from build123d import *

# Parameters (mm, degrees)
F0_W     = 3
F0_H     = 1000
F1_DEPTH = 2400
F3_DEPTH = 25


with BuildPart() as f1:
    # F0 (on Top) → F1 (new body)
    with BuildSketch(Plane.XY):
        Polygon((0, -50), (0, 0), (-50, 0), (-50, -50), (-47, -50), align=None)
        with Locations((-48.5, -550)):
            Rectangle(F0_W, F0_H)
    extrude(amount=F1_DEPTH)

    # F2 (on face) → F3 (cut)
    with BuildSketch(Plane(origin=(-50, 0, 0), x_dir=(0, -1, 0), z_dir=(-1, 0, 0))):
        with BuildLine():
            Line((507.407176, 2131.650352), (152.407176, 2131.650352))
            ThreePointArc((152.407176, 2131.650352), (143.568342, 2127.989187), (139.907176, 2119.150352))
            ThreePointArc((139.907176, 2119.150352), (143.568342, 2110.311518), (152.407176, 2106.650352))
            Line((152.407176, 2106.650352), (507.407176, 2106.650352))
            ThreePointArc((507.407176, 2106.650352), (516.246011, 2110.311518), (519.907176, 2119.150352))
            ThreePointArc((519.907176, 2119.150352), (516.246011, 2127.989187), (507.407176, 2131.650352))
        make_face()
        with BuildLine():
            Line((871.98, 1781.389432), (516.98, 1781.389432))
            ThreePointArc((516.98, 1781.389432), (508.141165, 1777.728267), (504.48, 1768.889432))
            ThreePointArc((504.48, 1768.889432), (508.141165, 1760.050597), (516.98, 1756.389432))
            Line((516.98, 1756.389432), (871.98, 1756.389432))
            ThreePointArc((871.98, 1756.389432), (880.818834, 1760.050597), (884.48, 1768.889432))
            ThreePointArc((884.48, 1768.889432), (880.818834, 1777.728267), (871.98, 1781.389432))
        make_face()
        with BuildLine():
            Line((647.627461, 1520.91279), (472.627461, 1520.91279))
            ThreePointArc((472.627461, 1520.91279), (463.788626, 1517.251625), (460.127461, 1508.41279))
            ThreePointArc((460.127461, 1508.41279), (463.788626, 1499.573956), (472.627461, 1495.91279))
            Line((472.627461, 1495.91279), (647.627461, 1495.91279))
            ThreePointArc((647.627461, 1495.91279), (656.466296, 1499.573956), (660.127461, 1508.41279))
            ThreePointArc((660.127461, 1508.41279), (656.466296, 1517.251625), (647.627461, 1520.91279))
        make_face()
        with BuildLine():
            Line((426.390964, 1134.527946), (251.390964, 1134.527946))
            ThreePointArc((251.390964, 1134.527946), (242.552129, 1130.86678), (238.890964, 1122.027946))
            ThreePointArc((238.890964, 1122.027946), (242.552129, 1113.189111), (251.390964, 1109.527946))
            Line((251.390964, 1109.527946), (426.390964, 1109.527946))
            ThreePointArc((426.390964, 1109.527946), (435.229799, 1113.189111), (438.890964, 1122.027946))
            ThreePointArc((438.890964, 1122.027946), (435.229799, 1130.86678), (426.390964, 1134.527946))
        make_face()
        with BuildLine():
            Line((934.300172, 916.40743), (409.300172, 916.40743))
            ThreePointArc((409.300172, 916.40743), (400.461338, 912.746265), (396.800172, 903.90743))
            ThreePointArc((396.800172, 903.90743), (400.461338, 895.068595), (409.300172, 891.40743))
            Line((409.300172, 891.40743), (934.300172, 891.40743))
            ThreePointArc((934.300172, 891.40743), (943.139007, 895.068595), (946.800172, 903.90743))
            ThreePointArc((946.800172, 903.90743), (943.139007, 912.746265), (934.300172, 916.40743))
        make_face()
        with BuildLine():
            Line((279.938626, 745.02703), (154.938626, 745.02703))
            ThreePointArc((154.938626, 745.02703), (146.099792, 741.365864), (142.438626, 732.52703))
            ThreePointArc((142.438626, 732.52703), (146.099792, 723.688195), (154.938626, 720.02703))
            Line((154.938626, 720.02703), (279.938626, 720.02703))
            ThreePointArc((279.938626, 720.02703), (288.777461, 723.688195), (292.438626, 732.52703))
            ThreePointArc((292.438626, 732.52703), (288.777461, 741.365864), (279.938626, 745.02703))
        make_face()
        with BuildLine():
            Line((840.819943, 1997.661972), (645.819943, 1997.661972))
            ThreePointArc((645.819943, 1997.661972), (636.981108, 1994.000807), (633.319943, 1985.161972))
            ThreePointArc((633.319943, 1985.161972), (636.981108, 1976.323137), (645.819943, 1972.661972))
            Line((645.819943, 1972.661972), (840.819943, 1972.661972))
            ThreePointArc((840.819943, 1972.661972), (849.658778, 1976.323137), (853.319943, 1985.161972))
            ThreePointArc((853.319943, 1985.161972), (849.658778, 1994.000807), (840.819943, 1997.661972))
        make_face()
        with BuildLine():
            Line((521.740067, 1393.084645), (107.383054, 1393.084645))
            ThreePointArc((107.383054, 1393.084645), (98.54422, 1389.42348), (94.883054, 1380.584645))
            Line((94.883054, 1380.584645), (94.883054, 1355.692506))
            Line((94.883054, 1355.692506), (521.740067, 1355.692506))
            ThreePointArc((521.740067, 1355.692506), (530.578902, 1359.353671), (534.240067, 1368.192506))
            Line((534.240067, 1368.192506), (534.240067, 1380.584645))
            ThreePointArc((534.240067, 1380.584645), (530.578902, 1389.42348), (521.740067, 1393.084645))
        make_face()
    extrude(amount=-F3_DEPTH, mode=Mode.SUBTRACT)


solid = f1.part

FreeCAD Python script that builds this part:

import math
import FreeCAD as App
import Part
import Sketcher

V = App.Vector
Q = App.Units.Quantity


def add_polygon(sketch, points):
    """Adds a closed chain of lines whose ends are joined by coincident constraints."""
    first, n = sketch.GeometryCount, len(points)
    for a, b in zip(points, points[1:] + points[:1]):
        sketch.addGeometry(Part.LineSegment(App.Vector(*a, 0), App.Vector(*b, 0)), False)
    for i in range(n):
        sketch.addConstraint(Sketcher.Constraint("Coincident", first + i, 2, first + (i + 1) % n, 1))

doc = App.newDocument("Part")
params = doc.addObject("Spreadsheet::Sheet", "Params")
for row, (alias, value) in enumerate([
    ("sketch1_width", "50 mm"),
    ("sketch1_width2", "3 mm"),
    ("sketch1_height", "1050 mm"),
    ("pad1_length", "2400 mm"),
    ("sketch2_radius", "12.500001 mm"),
    ("sketch2_width", "355 mm"),
    ("sketch2_width2", "175 mm"),
    ("sketch2_width3", "525 mm"),
    ("sketch2_width4", "125 mm"),
    ("pocket1_length", "25 mm"),
], start=1):
    params.set(f"A{row}", alias)
    params.set(f"B{row}", "=" + value)
    params.setAlias(f"B{row}", alias)

body = doc.addObject("PartDesign::Body", "Body")

# Sketch on XY plane
sketch1 = body.newObject("Sketcher::SketchObject", "Sketch")
sketch1.AttachmentSupport = (doc.getObject("XY_Plane"), [""])
sketch1.MapMode = "FlatFace"
add_polygon(sketch1, [(0, -50), (0, 0), (-50, 0), (-50, -1050), (-47, -1050), (-47, -50)])  # lines 0-5
sketch1.addConstraint(Sketcher.Constraint("Vertical", 0))
sketch1.addConstraint(Sketcher.Constraint("Horizontal", 1))
sketch1.addConstraint(Sketcher.Constraint("Vertical", 2))
sketch1.addConstraint(Sketcher.Constraint("Horizontal", 3))
sketch1.addConstraint(Sketcher.Constraint("Vertical", 4))
sketch1.addConstraint(Sketcher.Constraint("Horizontal", 5))
sketch1.addConstraint(Sketcher.Constraint("Coincident", 0, 2, -1, 1))
sketch1.addConstraint(Sketcher.Constraint("Equal", 1, 0))
sketch1.addConstraint(Sketcher.Constraint("DistanceX", 1, 2, 1, 1, Q("50 mm")))
sketch1.addConstraint(Sketcher.Constraint("DistanceX", 3, 1, 3, 2, Q("3 mm")))
sketch1.addConstraint(Sketcher.Constraint("DistanceY", 2, 2, 2, 1, Q("1050 mm")))
sketch1.setExpression("Constraints[14]", "Params.sketch1_width")
sketch1.setExpression("Constraints[15]", "Params.sketch1_width2")
sketch1.setExpression("Constraints[16]", "Params.sketch1_height")
pad1 = body.newObject("PartDesign::Pad", "Pad")
pad1.Profile = sketch1
pad1.setExpression("Length", "Params.pad1_length")

# Sketch on YZ plane
sketch2 = body.newObject("Sketcher::SketchObject", "Sketch001")
sketch2.AttachmentSupport = (doc.getObject("YZ_Plane"), [""])
sketch2.MapMode = "FlatFace"
sketch2.AttachmentOffset = App.Placement(V(0, 0, -50), App.Rotation())
sketch2.addGeometry(Part.LineSegment(V(-507, 2132, 0), V(-152, 2132, 0)), False)
sketch2.addGeometry(Part.ArcOfCircle(Part.Circle(V(-152, 2119, 0), V(0, 0, 1), 13), math.radians(0), math.radians(90)), False)
sketch2.addGeometry(Part.ArcOfCircle(Part.Circle(V(-152, 2119, 0), V(0, 0, 1), 13), math.radians(-90), math.radians(0)), False)
sketch2.addGeometry(Part.LineSegment(V(-152, 2107, 0), V(-507, 2107, 0)), False)
sketch2.addGeometry(Part.ArcOfCircle(Part.Circle(V(-507, 2119, 0), V(0, 0, 1), 13), math.radians(-180), math.radians(-90)), False)
sketch2.addGeometry(Part.ArcOfCircle(Part.Circle(V(-507, 2119, 0), V(0, 0, 1), 12), math.radians(90), math.radians(180)), False)
sketch2.addGeometry(Part.LineSegment(V(-872, 1781, 0), V(-517, 1781, 0)), False)
sketch2.addGeometry(Part.ArcOfCircle(Part.Circle(V(-517, 1769, 0), V(0, 0, 1), 12), math.radians(0), math.radians(90)), False)
sketch2.addGeometry(Part.ArcOfCircle(Part.Circle(V(-517, 1769, 0), V(0, 0, 1), 12), math.radians(-90), math.radians(0)), False)
sketch2.addGeometry(Part.LineSegment(V(-517, 1756, 0), V(-872, 1756, 0)), False)
sketch2.addGeometry(Part.ArcOfCircle(Part.Circle(V(-872, 1769, 0), V(0, 0, 1), 13), math.radians(-180), math.radians(-90)), False)
sketch2.addGeometry(Part.ArcOfCircle(Part.Circle(V(-872, 1769, 0), V(0, 0, 1), 13), math.radians(90), math.radians(180)), False)
sketch2.addGeometry(Part.LineSegment(V(-648, 1521, 0), V(-473, 1521, 0)), False)
sketch2.addGeometry(Part.ArcOfCircle(Part.Circle(V(-473, 1508, 0), V(0, 0, 1), 12), math.radians(0), math.radians(90)), False)
sketch2.addGeometry(Part.ArcOfCircle(Part.Circle(V(-473, 1508, 0), V(0, 0, 1), 13), math.radians(-90), math.radians(0)), False)
sketch2.addGeometry(Part.LineSegment(V(-473, 1496, 0), V(-648, 1496, 0)), False)
sketch2.addGeometry(Part.ArcOfCircle(Part.Circle(V(-648, 1508, 0), V(0, 0, 1), 13), math.radians(-180), math.radians(-90)), False)
sketch2.addGeometry(Part.ArcOfCircle(Part.Circle(V(-648, 1508, 0), V(0, 0, 1), 12), math.radians(90), math.radians(180)), False)
sketch2.addGeometry(Part.LineSegment(V(-426, 1135, 0), V(-251, 1135, 0)), False)
sketch2.addGeometry(Part.ArcOfCircle(Part.Circle(V(-251, 1122, 0), V(0, 0, 1), 13), math.radians(0), math.radians(90)), False)
sketch2.addGeometry(Part.ArcOfCircle(Part.Circle(V(-251, 1122, 0), V(0, 0, 1), 12), math.radians(-90), math.radians(0)), False)
sketch2.addGeometry(Part.LineSegment(V(-251, 1110, 0), V(-426, 1110, 0)), False)
sketch2.addGeometry(Part.ArcOfCircle(Part.Circle(V(-426, 1122, 0), V(0, 0, 1), 12), math.radians(180), math.radians(270)), False)
sketch2.addGeometry(Part.ArcOfCircle(Part.Circle(V(-426, 1122, 0), V(0, 0, 1), 13), math.radians(90), math.radians(180)), False)
sketch2.addGeometry(Part.LineSegment(V(-934, 916, 0), V(-409, 916, 0)), False)
sketch2.addGeometry(Part.ArcOfCircle(Part.Circle(V(-409, 904, 0), V(0, 0, 1), 13), math.radians(0), math.radians(90)), False)
sketch2.addGeometry(Part.ArcOfCircle(Part.Circle(V(-409, 904, 0), V(0, 0, 1), 13), math.radians(-90), math.radians(0)), False)
sketch2.addGeometry(Part.LineSegment(V(-409, 891, 0), V(-934, 891, 0)), False)
sketch2.addGeometry(Part.ArcOfCircle(Part.Circle(V(-934, 904, 0), V(0, 0, 1), 12), math.radians(180), math.radians(270)), False)
sketch2.addGeometry(Part.ArcOfCircle(Part.Circle(V(-934, 904, 0), V(0, 0, 1), 12), math.radians(90), math.radians(180)), False)
sketch2.addGeometry(Part.LineSegment(V(-280, 745, 0), V(-155, 745, 0)), False)
sketch2.addGeometry(Part.ArcOfCircle(Part.Circle(V(-155, 733, 0), V(0, 0, 1), 13), math.radians(0), math.radians(90)), False)
sketch2.addGeometry(Part.ArcOfCircle(Part.Circle(V(-155, 733, 0), V(0, 0, 1), 13), math.radians(-90), math.radians(0)), False)
sketch2.addGeometry(Part.LineSegment(V(-155, 720, 0), V(-280, 720, 0)), False)
sketch2.addGeometry(Part.ArcOfCircle(Part.Circle(V(-280, 733, 0), V(0, 0, 1), 12), math.radians(180), math.radians(270)), False)
sketch2.addGeometry(Part.ArcOfCircle(Part.Circle(V(-280, 733, 0), V(0, 0, 1), 13), math.radians(90), math.radians(180)), False)
sketch2.addGeometry(Part.LineSegment(V(-841, 1998, 0), V(-646, 1998, 0)), False)
sketch2.addGeometry(Part.ArcOfCircle(Part.Circle(V(-646, 1985, 0), V(0, 0, 1), 12), math.radians(0), math.radians(90)), False)
sketch2.addGeometry(Part.ArcOfCircle(Part.Circle(V(-646, 1985, 0), V(0, 0, 1), 12), math.radians(-90), math.radians(0)), False)
sketch2.addGeometry(Part.LineSegment(V(-646, 1973, 0), V(-841, 1973, 0)), False)
sketch2.addGeometry(Part.ArcOfCircle(Part.Circle(V(-841, 1985, 0), V(0, 0, 1), 12), math.radians(180), math.radians(270)), False)
sketch2.addGeometry(Part.ArcOfCircle(Part.Circle(V(-841, 1985, 0), V(0, 0, 1), 12), math.radians(90), math.radians(180)), False)
sketch2.addGeometry(Part.LineSegment(V(-522, 1393, 0), V(-107, 1393, 0)), False)
sketch2.addGeometry(Part.ArcOfCircle(Part.Circle(V(-107, 1381, 0), V(0, 0, 1), 13), math.radians(0), math.radians(90)), False)
sketch2.addGeometry(Part.LineSegment(V(-95, 1381, 0), V(-95, 1356, 0)), False)
sketch2.addGeometry(Part.LineSegment(V(-95, 1356, 0), V(-522, 1356, 0)), False)
sketch2.addGeometry(Part.ArcOfCircle(Part.Circle(V(-522, 1368, 0), V(0, 0, 1), 12), math.radians(180), math.radians(270)), False)
sketch2.addGeometry(Part.LineSegment(V(-534, 1368, 0), V(-534, 1381, 0)), False)
sketch2.addGeometry(Part.ArcOfCircle(Part.Circle(V(-522, 1381, 0), V(0, 0, 1), 12), math.radians(90), math.radians(180)), False)
sketch2.addConstraint(Sketcher.Constraint("Tangent", 0, 2, 1, 2))
sketch2.addConstraint(Sketcher.Constraint("Tangent", 1, 1, 2, 2))
sketch2.addConstraint(Sketcher.Constraint("Tangent", 2, 1, 3, 1))
sketch2.addConstraint(Sketcher.Constraint("Tangent", 3, 2, 4, 2))
sketch2.addConstraint(Sketcher.Constraint("Tangent", 4, 1, 5, 2))
sketch2.addConstraint(Sketcher.Constraint("Tangent", 5, 1, 0, 1))
sketch2.addConstraint(Sketcher.Constraint("Tangent", 6, 2, 7, 2))
sketch2.addConstraint(Sketcher.Constraint("Tangent", 7, 1, 8, 2))
sketch2.addConstraint(Sketcher.Constraint("Tangent", 8, 1, 9, 1))
sketch2.addConstraint(Sketcher.Constraint("Tangent", 9, 2, 10, 2))
sketch2.addConstraint(Sketcher.Constraint("Tangent", 10, 1, 11, 2))
sketch2.addConstraint(Sketcher.Constraint("Tangent", 11, 1, 6, 1))
sketch2.addConstraint(Sketcher.Constraint("Tangent", 12, 2, 13, 2))
sketch2.addConstraint(Sketcher.Constraint("Tangent", 13, 1, 14, 2))
sketch2.addConstraint(Sketcher.Constraint("Tangent", 14, 1, 15, 1))
sketch2.addConstraint(Sketcher.Constraint("Tangent", 15, 2, 16, 2))
sketch2.addConstraint(Sketcher.Constraint("Tangent", 16, 1, 17, 2))
sketch2.addConstraint(Sketcher.Constraint("Tangent", 17, 1, 12, 1))
sketch2.addConstraint(Sketcher.Constraint("Tangent", 18, 2, 19, 2))
sketch2.addConstraint(Sketcher.Constraint("Tangent", 19, 1, 20, 2))
sketch2.addConstraint(Sketcher.Constraint("Tangent", 20, 1, 21, 1))
sketch2.addConstraint(Sketcher.Constraint("Tangent", 21, 2, 22, 2))
sketch2.addConstraint(Sketcher.Constraint("Tangent", 22, 1, 23, 2))
sketch2.addConstraint(Sketcher.Constraint("Tangent", 23, 1, 18, 1))
sketch2.addConstraint(Sketcher.Constraint("Tangent", 24, 2, 25, 2))
sketch2.addConstraint(Sketcher.Constraint("Tangent", 25, 1, 26, 2))
sketch2.addConstraint(Sketcher.Constraint("Tangent", 26, 1, 27, 1))
sketch2.addConstraint(Sketcher.Constraint("Tangent", 27, 2, 28, 2))
sketch2.addConstraint(Sketcher.Constraint("Tangent", 28, 1, 29, 2))
sketch2.addConstraint(Sketcher.Constraint("Tangent", 29, 1, 24, 1))
sketch2.addConstraint(Sketcher.Constraint("Tangent", 30, 2, 31, 2))
sketch2.addConstraint(Sketcher.Constraint("Tangent", 31, 1, 32, 2))
sketch2.addConstraint(Sketcher.Constraint("Tangent", 32, 1, 33, 1))
sketch2.addConstraint(Sketcher.Constraint("Tangent", 33, 2, 34, 2))
sketch2.addConstraint(Sketcher.Constraint("Tangent", 34, 1, 35, 2))
sketch2.addConstraint(Sketcher.Constraint("Tangent", 35, 1, 30, 1))
sketch2.addConstraint(Sketcher.Constraint("Tangent", 36, 2, 37, 2))
sketch2.addConstraint(Sketcher.Constraint("Tangent", 37, 1, 38, 2))
sketch2.addConstraint(Sketcher.Constraint("Tangent", 38, 1, 39, 1))
sketch2.addConstraint(Sketcher.Constraint("Tangent", 39, 2, 40, 2))
sketch2.addConstraint(Sketcher.Constraint("Tangent", 40, 1, 41, 2))
sketch2.addConstraint(Sketcher.Constraint("Tangent", 41, 1, 36, 1))
sketch2.addConstraint(Sketcher.Constraint("Tangent", 42, 2, 43, 2))
sketch2.addConstraint(Sketcher.Constraint("Tangent", 43, 1, 44, 1))
sketch2.addConstraint(Sketcher.Constraint("Coincident", 44, 2, 45, 1))
sketch2.addConstraint(Sketcher.Constraint("Tangent", 45, 2, 46, 2))
sketch2.addConstraint(Sketcher.Constraint("Tangent", 46, 1, 47, 1))
sketch2.addConstraint(Sketcher.Constraint("Tangent", 47, 2, 48, 2))
sketch2.addConstraint(Sketcher.Constraint("Tangent", 48, 1, 42, 1))
sketch2.addConstraint(Sketcher.Constraint("Horizontal", 0))
sketch2.addConstraint(Sketcher.Constraint("Horizontal", 3))
sketch2.addConstraint(Sketcher.Constraint("Horizontal", 6))
sketch2.addConstraint(Sketcher.Constraint("Horizontal", 9))
sketch2.addConstraint(Sketcher.Constraint("Horizontal", 12))
sketch2.addConstraint(Sketcher.Constraint("Horizontal", 15))
sketch2.addConstraint(Sketcher.Constraint("Horizontal", 18))
sketch2.addConstraint(Sketcher.Constraint("Horizontal", 21))
sketch2.addConstraint(Sketcher.Constraint("Horizontal", 24))
sketch2.addConstraint(Sketcher.Constraint("Horizontal", 27))
sketch2.addConstraint(Sketcher.Constraint("Horizontal", 30))
sketch2.addConstraint(Sketcher.Constraint("Horizontal", 33))
sketch2.addConstraint(Sketcher.Constraint("Horizontal", 36))
sketch2.addConstraint(Sketcher.Constraint("Horizontal", 39))
sketch2.addConstraint(Sketcher.Constraint("Horizontal", 42))
sketch2.addConstraint(Sketcher.Constraint("Vertical", 44))
sketch2.addConstraint(Sketcher.Constraint("Horizontal", 45))
sketch2.addConstraint(Sketcher.Constraint("Vertical", 47))
sketch2.addConstraint(Sketcher.Constraint("Equal", 1, 2))
sketch2.addConstraint(Sketcher.Constraint("Equal", 2, 4))
sketch2.addConstraint(Sketcher.Constraint("Equal", 5, 7))
sketch2.addConstraint(Sketcher.Constraint("Equal", 7, 8))
sketch2.addConstraint(Sketcher.Constraint("Equal", 8, 10))
sketch2.addConstraint(Sketcher.Constraint("Equal", 11, 13))
sketch2.addConstraint(Sketcher.Constraint("Equal", 13, 14))
sketch2.addConstraint(Sketcher.Constraint("Equal", 14, 16))
sketch2.addConstraint(Sketcher.Constraint("Equal", 17, 19))
sketch2.addConstraint(Sketcher.Constraint("Equal", 19, 20))
sketch2.addConstraint(Sketcher.Constraint("Equal", 20, 22))
sketch2.addConstraint(Sketcher.Constraint("Equal", 23, 25))
sketch2.addConstraint(Sketcher.Constraint("Equal", 25, 26))
sketch2.addConstraint(Sketcher.Constraint("Equal", 26, 28))
sketch2.addConstraint(Sketcher.Constraint("Equal", 26, 31))
sketch2.addConstraint(Sketcher.Constraint("Equal", 31, 32))
sketch2.addConstraint(Sketcher.Constraint("Equal", 32, 34))
sketch2.addConstraint(Sketcher.Constraint("Equal", 35, 37))
sketch2.addConstraint(Sketcher.Constraint("Equal", 37, 38))
sketch2.addConstraint(Sketcher.Constraint("Equal", 38, 40))
sketch2.addConstraint(Sketcher.Constraint("Equal", 41, 43))
sketch2.addConstraint(Sketcher.Constraint("Equal", 43, 46))
sketch2.addConstraint(Sketcher.Constraint("Equal", 46, 48))
sketch2.addConstraint(Sketcher.Constraint("Horizontal", 5, 3, 1, 1))
sketch2.addConstraint(Sketcher.Constraint("Horizontal", 1, 1, 4, 1))
sketch2.addConstraint(Sketcher.Constraint("Horizontal", 11, 3, 7, 1))
sketch2.addConstraint(Sketcher.Constraint("Horizontal", 7, 1, 10, 1))
sketch2.addConstraint(Sketcher.Constraint("Horizontal", 17, 3, 13, 1))
sketch2.addConstraint(Sketcher.Constraint("Horizontal", 13, 1, 16, 1))
sketch2.addConstraint(Sketcher.Constraint("Horizontal", 23, 3, 19, 1))
sketch2.addConstraint(Sketcher.Constraint("Horizontal", 19, 1, 22, 1))
sketch2.addConstraint(Sketcher.Constraint("Horizontal", 29, 3, 25, 1))
sketch2.addConstraint(Sketcher.Constraint("Horizontal", 25, 1, 28, 1))
sketch2.addConstraint(Sketcher.Constraint("Horizontal", 35, 3, 31, 1))
sketch2.addConstraint(Sketcher.Constraint("Horizontal", 31, 1, 34, 1))
sketch2.addConstraint(Sketcher.Constraint("Horizontal", 41, 3, 37, 1))
sketch2.addConstraint(Sketcher.Constraint("Horizontal", 37, 1, 40, 1))
sketch2.addConstraint(Sketcher.Constraint("Equal", 3, 6))
sketch2.addConstraint(Sketcher.Constraint("Equal", 15, 18))
sketch2.addConstraint(Sketcher.Constraint("Radius", 1, Q("12.500001 mm")))
sketch2.addConstraint(Sketcher.Constraint("DistanceX", 0, 1, 0, 2, Q("355 mm")))
sketch2.addConstraint(Sketcher.Constraint("DistanceX", 12, 1, 12, 2, Q("175 mm")))
sketch2.addConstraint(Sketcher.Constraint("DistanceX", 24, 1, 24, 2, Q("525 mm")))
sketch2.addConstraint(Sketcher.Constraint("DistanceX", 30, 1, 30, 2, Q("125 mm")))
sketch2.addConstraint(Sketcher.Constraint("DistanceX", 36, 1, 36, 2, Q("195 mm")))
sketch2.addConstraint(Sketcher.Constraint("DistanceX", 7, 3, -1, 1, Q("516.979999 mm")))
sketch2.addConstraint(Sketcher.Constraint("DistanceY", 44, 2, 44, 1, Q("24.892139 mm")))
sketch2.addConstraint(Sketcher.Constraint("DistanceX", 42, 1, 42, 2, Q("414.357013 mm")))
sketch2.addConstraint(Sketcher.Constraint("DistanceY", -1, 1, 1, 3, Q("2119.150351 mm")))
sketch2.addConstraint(Sketcher.Constraint("DistanceX", 2, 3, -1, 1, Q("152.407179 mm")))
sketch2.addConstraint(Sketcher.Constraint("DistanceY", -1, 1, 8, 3, Q("1768.889431 mm")))
sketch2.addConstraint(Sketcher.Constraint("DistanceX", 13, 3, -1, 1, Q("472.62746 mm")))
sketch2.addConstraint(Sketcher.Constraint("DistanceY", -1, 1, 13, 3, Q("1508.412791 mm")))
sketch2.addConstraint(Sketcher.Constraint("DistanceY", -1, 1, 25, 3, Q("903.907429 mm")))
sketch2.addConstraint(Sketcher.Constraint("DistanceX", 31, 3, -1, 1, Q("154.938629 mm")))
sketch2.addConstraint(Sketcher.Constraint("DistanceY", -1, 1, 32, 3, Q("732.527031 mm")))
sketch2.addConstraint(Sketcher.Constraint("DistanceY", -1, 1, 38, 3, Q("1985.161971 mm")))
sketch2.addConstraint(Sketcher.Constraint("DistanceX", 24, 2, -1, 1, Q("409.300172 mm")))
sketch2.addConstraint(Sketcher.Constraint("DistanceX", 19, 3, -1, 1, Q("251.390965 mm")))
sketch2.addConstraint(Sketcher.Constraint("DistanceY", -1, 1, 19, 3, Q("1122.027945 mm")))
sketch2.addConstraint(Sketcher.Constraint("DistanceX", 37, 3, -1, 1, Q("645.819942 mm")))
sketch2.addConstraint(Sketcher.Constraint("DistanceX", 43, 3, -1, 1, Q("107.383055 mm")))
sketch2.addConstraint(Sketcher.Constraint("DistanceY", -1, 1, 43, 3, Q("1380.584644 mm")))
sketch2.setExpression("Constraints[106]", "Params.sketch2_radius")
sketch2.setExpression("Constraints[107]", "Params.sketch2_width")
sketch2.setExpression("Constraints[108]", "Params.sketch2_width2")
sketch2.setExpression("Constraints[109]", "Params.sketch2_width3")
sketch2.setExpression("Constraints[110]", "Params.sketch2_width4")
pocket1 = body.newObject("PartDesign::Pocket", "Pocket")
pocket1.Profile = sketch2
pocket1.setExpression("Length", "Params.pocket1_length")
pocket1.Reversed = True

doc.recompute()
